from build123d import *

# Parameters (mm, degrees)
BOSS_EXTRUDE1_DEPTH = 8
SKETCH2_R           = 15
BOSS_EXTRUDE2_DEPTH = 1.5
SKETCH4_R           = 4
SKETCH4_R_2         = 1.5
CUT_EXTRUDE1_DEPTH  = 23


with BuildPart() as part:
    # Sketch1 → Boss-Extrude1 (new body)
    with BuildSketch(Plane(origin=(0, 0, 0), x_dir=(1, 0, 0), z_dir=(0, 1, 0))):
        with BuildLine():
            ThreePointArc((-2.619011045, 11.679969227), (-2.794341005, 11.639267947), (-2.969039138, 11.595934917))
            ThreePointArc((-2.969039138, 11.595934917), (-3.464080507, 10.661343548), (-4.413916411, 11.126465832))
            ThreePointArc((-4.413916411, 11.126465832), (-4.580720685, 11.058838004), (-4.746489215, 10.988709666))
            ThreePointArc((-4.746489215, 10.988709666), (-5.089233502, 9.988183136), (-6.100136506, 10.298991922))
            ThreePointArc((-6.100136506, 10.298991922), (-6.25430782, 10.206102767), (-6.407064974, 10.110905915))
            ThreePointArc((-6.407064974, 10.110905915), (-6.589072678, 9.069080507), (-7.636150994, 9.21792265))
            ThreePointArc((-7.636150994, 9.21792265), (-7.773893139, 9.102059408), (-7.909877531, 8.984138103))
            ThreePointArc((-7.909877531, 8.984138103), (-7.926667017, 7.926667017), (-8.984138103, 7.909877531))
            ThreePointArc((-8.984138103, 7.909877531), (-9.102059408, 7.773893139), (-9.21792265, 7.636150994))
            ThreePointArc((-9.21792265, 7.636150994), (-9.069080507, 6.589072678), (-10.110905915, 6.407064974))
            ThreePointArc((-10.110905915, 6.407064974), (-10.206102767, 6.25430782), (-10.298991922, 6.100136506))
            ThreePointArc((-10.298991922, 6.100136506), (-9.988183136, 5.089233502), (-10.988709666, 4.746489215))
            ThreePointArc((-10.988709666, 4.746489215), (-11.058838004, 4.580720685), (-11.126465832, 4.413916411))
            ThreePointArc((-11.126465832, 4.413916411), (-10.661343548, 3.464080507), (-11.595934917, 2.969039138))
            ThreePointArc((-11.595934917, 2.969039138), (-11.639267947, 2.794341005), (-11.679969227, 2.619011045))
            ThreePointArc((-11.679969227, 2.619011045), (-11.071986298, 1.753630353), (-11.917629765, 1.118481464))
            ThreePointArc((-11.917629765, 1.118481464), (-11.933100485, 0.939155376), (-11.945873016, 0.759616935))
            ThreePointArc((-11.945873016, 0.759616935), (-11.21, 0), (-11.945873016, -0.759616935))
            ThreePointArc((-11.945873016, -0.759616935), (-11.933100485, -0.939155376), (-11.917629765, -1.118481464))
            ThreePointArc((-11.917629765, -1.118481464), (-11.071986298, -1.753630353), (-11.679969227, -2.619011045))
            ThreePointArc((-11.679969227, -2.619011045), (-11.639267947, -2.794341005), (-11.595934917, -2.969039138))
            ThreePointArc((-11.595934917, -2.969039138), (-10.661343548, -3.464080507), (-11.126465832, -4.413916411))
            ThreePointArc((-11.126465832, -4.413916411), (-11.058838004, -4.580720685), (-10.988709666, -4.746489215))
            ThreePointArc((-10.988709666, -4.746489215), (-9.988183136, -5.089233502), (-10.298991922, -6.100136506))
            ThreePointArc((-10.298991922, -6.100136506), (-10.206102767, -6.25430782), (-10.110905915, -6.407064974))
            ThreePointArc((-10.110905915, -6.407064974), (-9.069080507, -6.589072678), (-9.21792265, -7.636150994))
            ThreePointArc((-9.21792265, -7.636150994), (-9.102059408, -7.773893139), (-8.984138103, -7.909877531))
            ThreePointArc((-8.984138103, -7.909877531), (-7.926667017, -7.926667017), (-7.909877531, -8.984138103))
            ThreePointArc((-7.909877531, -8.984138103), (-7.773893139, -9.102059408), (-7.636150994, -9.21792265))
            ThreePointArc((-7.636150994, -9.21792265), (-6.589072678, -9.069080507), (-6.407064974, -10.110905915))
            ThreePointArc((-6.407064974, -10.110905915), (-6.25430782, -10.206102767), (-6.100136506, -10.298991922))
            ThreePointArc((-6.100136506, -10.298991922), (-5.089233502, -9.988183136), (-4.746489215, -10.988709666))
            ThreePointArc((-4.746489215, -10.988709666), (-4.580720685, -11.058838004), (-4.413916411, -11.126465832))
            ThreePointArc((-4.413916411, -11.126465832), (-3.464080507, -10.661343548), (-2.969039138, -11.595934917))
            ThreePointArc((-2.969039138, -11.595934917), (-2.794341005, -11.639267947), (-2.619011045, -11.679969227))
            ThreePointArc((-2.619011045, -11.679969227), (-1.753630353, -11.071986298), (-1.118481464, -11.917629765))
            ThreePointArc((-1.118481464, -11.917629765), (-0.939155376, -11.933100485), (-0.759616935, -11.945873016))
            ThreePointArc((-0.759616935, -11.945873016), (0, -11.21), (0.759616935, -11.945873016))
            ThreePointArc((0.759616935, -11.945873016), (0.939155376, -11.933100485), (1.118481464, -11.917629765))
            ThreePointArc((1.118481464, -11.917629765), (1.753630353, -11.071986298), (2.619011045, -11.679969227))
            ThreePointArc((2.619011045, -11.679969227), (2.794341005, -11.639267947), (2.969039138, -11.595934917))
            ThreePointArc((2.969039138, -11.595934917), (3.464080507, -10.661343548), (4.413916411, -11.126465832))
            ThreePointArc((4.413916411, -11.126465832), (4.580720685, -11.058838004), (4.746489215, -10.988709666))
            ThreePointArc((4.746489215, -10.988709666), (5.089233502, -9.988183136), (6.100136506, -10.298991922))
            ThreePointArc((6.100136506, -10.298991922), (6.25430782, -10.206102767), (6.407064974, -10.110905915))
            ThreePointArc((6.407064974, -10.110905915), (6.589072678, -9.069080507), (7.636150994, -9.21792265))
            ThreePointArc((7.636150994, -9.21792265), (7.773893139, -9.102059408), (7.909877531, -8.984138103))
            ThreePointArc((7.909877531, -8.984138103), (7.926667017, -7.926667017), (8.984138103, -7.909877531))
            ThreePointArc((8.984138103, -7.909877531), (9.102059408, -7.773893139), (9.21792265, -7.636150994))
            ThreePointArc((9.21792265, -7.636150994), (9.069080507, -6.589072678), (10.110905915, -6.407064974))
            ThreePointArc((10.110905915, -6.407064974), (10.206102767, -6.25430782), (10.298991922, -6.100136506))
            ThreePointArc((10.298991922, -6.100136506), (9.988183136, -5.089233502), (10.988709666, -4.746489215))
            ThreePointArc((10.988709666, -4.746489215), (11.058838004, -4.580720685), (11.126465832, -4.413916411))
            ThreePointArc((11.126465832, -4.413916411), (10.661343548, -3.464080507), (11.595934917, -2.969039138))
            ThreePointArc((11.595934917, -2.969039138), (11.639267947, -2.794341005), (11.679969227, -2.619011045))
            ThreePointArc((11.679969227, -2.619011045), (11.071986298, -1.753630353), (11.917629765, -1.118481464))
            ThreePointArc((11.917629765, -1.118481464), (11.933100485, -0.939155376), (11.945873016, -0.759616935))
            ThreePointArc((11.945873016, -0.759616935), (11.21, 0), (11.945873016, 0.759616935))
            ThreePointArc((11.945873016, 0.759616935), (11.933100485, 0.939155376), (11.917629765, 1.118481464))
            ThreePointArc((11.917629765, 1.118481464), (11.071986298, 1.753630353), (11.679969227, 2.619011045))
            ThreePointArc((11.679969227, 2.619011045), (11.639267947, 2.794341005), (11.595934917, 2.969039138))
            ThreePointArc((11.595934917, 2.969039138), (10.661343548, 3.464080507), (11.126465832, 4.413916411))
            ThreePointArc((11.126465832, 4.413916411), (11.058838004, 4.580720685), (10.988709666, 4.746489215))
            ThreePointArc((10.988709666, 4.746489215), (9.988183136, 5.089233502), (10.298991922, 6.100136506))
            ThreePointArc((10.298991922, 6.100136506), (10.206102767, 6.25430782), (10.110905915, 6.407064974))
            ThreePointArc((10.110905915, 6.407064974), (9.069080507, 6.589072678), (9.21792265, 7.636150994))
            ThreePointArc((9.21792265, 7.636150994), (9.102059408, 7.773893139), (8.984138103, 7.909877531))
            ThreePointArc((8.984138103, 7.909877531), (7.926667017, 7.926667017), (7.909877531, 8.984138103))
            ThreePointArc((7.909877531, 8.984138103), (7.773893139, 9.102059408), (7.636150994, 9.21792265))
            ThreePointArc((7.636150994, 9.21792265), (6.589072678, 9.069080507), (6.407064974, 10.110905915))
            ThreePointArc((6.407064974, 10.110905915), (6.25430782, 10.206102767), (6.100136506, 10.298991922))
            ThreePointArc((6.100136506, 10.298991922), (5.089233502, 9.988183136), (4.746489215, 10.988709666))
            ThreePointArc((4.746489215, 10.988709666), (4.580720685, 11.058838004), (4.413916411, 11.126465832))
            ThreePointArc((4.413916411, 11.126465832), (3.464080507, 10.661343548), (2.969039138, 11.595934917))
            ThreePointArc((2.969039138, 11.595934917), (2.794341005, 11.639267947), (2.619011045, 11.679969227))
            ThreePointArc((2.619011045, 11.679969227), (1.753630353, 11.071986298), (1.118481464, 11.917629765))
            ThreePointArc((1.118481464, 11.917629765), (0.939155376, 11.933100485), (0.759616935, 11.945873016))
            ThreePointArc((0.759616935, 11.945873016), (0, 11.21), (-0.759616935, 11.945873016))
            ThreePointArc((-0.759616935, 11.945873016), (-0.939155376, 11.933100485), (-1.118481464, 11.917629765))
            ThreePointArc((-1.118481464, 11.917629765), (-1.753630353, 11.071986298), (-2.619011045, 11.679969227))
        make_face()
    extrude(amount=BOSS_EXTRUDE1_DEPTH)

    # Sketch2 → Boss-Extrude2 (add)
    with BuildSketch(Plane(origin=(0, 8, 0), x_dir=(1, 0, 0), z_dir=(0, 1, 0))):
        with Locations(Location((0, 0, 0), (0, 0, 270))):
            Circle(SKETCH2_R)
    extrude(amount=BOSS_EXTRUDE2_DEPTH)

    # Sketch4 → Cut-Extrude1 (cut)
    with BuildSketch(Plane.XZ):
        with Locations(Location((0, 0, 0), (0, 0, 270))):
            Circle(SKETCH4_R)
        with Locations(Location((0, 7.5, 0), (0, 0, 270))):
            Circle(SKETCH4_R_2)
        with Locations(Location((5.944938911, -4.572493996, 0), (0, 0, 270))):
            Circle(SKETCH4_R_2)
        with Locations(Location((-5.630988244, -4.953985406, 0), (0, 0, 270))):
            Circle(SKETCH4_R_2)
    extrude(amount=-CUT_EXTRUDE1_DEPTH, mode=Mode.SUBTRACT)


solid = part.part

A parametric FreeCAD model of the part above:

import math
import FreeCAD as App
import Part
import Sketcher

V = App.Vector
Q = App.Units.Quantity

doc = App.newDocument("Part")
body = doc.addObject("PartDesign::Body", "Body")

sketch1 = doc.addObject("Sketcher::SketchObject", "Sketch")
body.addObject(sketch1)
sketch1.AttachmentSupport = (doc.XZ_Plane, [""])
sketch1.MapMode = "FlatFace"
sketch1.addGeometry([
    Part.ArcOfCircle(Part.Circle(V(0, 0, 0), V(0, 0, 1), 11.97), math.radians(-104.36), math.radians(-102.64)),
    Part.ArcOfCircle(Part.Circle(V(-3.7, -11.38, 0), V(0, 0, 1), 0.76), math.radians(-16), math.radians(160)),
    Part.ArcOfCircle(Part.Circle(V(0, 0, 0), V(0, 0, 1), 11.97), math.radians(-113.36), math.radians(-111.64)),
    Part.ArcOfCircle(Part.Circle(V(-5.43, -10.67, 0), V(0, 0, 1), 0.76), math.radians(-25), math.radians(151)),
    Part.ArcOfCircle(Part.Circle(V(0, 0, 0), V(0, 0, 1), 11.97), math.radians(-122.36), math.radians(-120.64)),
    Part.ArcOfCircle(Part.Circle(V(-7.04, -9.68, 0), V(0, 0, 1), 0.76), math.radians(-34), math.radians(142)),
    Part.ArcOfCircle(Part.Circle(V(0, 0, 0), V(0, 0, 1), 11.97), math.radians(-131.36), math.radians(-129.64)),
    Part.ArcOfCircle(Part.Circle(V(-8.46, -8.46, 0), V(0, 0, 1), 0.76), math.radians(-43), math.radians(133)),
    Part.ArcOfCircle(Part.Circle(V(0, 0, 0), V(0, 0, 1), 11.97), math.radians(-140.36), math.radians(-138.64)),
    Part.ArcOfCircle(Part.Circle(V(-9.68, -7.04, 0), V(0, 0, 1), 0.76), math.radians(-52), math.radians(124)),
    Part.ArcOfCircle(Part.Circle(V(0, 0, 0), V(0, 0, 1), 11.97), math.radians(-149.36), math.radians(-147.64)),
    Part.ArcOfCircle(Part.Circle(V(-10.67, -5.43, 0), V(0, 0, 1), 0.76), math.radians(-61), math.radians(115)),
    Part.ArcOfCircle(Part.Circle(V(0, 0, 0), V(0, 0, 1), 11.97), math.radians(-158.36), math.radians(-156.64)),
    Part.ArcOfCircle(Part.Circle(V(-11.38, -3.7, 0), V(0, 0, 1), 0.76), math.radians(-70), math.radians(106)),
    Part.ArcOfCircle(Part.Circle(V(0, 0, 0), V(0, 0, 1), 11.97), math.radians(-167.36), math.radians(-165.64)),
    Part.ArcOfCircle(Part.Circle(V(-11.82, -1.87, 0), V(0, 0, 1), 0.76), math.radians(-79), math.radians(97)),
    Part.ArcOfCircle(Part.Circle(V(0, 0, 0), V(0, 0, 1), 11.97), math.radians(-176.36), math.radians(-174.64)),
    Part.ArcOfCircle(Part.Circle(V(-11.97, 0, 0), V(0, 0, 1), 0.76), math.radians(-88), math.radians(88)),
    Part.ArcOfCircle(Part.Circle(V(0, 0, 0), V(0, 0, 1), 11.97), math.radians(174.64), math.radians(176.36)),
    Part.ArcOfCircle(Part.Circle(V(-11.82, 1.87, 0), V(0, 0, 1), 0.76), math.radians(-97), math.radians(79)),
    Part.ArcOfCircle(Part.Circle(V(0, 0, 0), V(0, 0, 1), 11.97), math.radians(165.64), math.radians(167.36)),
    Part.ArcOfCircle(Part.Circle(V(-11.38, 3.7, 0), V(0, 0, 1), 0.76), math.radians(-106), math.radians(70)),
    Part.ArcOfCircle(Part.Circle(V(0, 0, 0), V(0, 0, 1), 11.97), math.radians(156.64), math.radians(158.36)),
    Part.ArcOfCircle(Part.Circle(V(-10.67, 5.43, 0), V(0, 0, 1), 0.76), math.radians(-115), math.radians(61)),
    Part.ArcOfCircle(Part.Circle(V(0, 0, 0), V(0, 0, 1), 11.97), math.radians(147.64), math.radians(149.36)),
    Part.ArcOfCircle(Part.Circle(V(-9.68, 7.04, 0), V(0, 0, 1), 0.76), math.radians(-124), math.radians(52)),
    Part.ArcOfCircle(Part.Circle(V(0, 0, 0), V(0, 0, 1), 11.97), math.radians(138.64), math.radians(140.36)),
    Part.ArcOfCircle(Part.Circle(V(-8.46, 8.46, 0), V(0, 0, 1), 0.76), math.radians(-133), math.radians(43)),
    Part.ArcOfCircle(Part.Circle(V(0, 0, 0), V(0, 0, 1), 11.97), math.radians(129.64), math.radians(131.36)),
    Part.ArcOfCircle(Part.Circle(V(-7.04, 9.68, 0), V(0, 0, 1), 0.76), math.radians(-142), math.radians(34)),
    Part.ArcOfCircle(Part.Circle(V(0, 0, 0), V(0, 0, 1), 11.97), math.radians(120.64), math.radians(122.36)),
    Part.ArcOfCircle(Part.Circle(V(-5.43, 10.67, 0), V(0, 0, 1), 0.76), math.radians(-151), math.radians(25)),
    Part.ArcOfCircle(Part.Circle(V(0, 0, 0), V(0, 0, 1), 11.97), math.radians(111.64), math.radians(113.36)),
    Part.ArcOfCircle(Part.Circle(V(-3.7, 11.38, 0), V(0, 0, 1), 0.76), math.radians(-160), math.radians(16)),
    Part.ArcOfCircle(Part.Circle(V(0, 0, 0), V(0, 0, 1), 11.97), math.radians(102.64), math.radians(104.36)),
    Part.ArcOfCircle(Part.Circle(V(-1.87, 11.82, 0), V(0, 0, 1), 0.76), math.radians(-169), math.radians(7)),
    Part.ArcOfCircle(Part.Circle(V(0, 0, 0), V(0, 0, 1), 11.97), math.radians(93.64), math.radians(95.36)),
    Part.ArcOfCircle(Part.Circle(V(0, 11.97, 0), V(0, 0, 1), 0.76), math.radians(-178), math.radians(-2)),
    Part.ArcOfCircle(Part.Circle(V(0, 0, 0), V(0, 0, 1), 11.97), math.radians(84.64), math.radians(86.36)),
    Part.ArcOfCircle(Part.Circle(V(1.87, 11.82, 0), V(0, 0, 1), 0.76), math.radians(173), math.radians(349)),
    Part.ArcOfCircle(Part.Circle(V(0, 0, 0), V(0, 0, 1), 11.97), math.radians(75.64), math.radians(77.36)),
    Part.ArcOfCircle(Part.Circle(V(3.7, 11.38, 0), V(0, 0, 1), 0.76), math.radians(164), math.radians(340)),
    Part.ArcOfCircle(Part.Circle(V(0, 0, 0), V(0, 0, 1), 11.97), math.radians(66.64), math.radians(68.36)),
    Part.ArcOfCircle(Part.Circle(V(5.43, 10.67, 0), V(0, 0, 1), 0.76), math.radians(155), math.radians(331)),
    Part.ArcOfCircle(Part.Circle(V(0, 0, 0), V(0, 0, 1), 11.97), math.radians(57.64), math.radians(59.36)),
    Part.ArcOfCircle(Part.Circle(V(7.04, 9.68, 0), V(0, 0, 1), 0.76), math.radians(146), math.radians(322)),
    Part.ArcOfCircle(Part.Circle(V(0, 0, 0), V(0, 0, 1), 11.97), math.radians(48.64), math.radians(50.36)),
    Part.ArcOfCircle(Part.Circle(V(8.46, 8.46, 0), V(0, 0, 1), 0.76), math.radians(137), math.radians(313)),
    Part.ArcOfCircle(Part.Circle(V(0, 0, 0), V(0, 0, 1), 11.97), math.radians(39.64), math.radians(41.36)),
    Part.ArcOfCircle(Part.Circle(V(9.68, 7.04, 0), V(0, 0, 1), 0.76), math.radians(128), math.radians(304)),
    Part.ArcOfCircle(Part.Circle(V(0, 0, 0), V(0, 0, 1), 11.97), math.radians(30.64), math.radians(32.36)),
    Part.ArcOfCircle(Part.Circle(V(10.67, 5.43, 0), V(0, 0, 1), 0.76), math.radians(119), math.radians(295)),
    Part.ArcOfCircle(Part.Circle(V(0, 0, 0), V(0, 0, 1), 11.97), math.radians(21.64), math.radians(23.36)),
    Part.ArcOfCircle(Part.Circle(V(11.38, 3.7, 0), V(0, 0, 1), 0.76), math.radians(110), math.radians(286)),
    Part.ArcOfCircle(Part.Circle(V(0, 0, 0), V(0, 0, 1), 11.97), math.radians(12.64), math.radians(14.36)),
    Part.ArcOfCircle(Part.Circle(V(11.82, 1.87, 0), V(0, 0, 1), 0.76), math.radians(101), math.radians(277)),
    Part.ArcOfCircle(Part.Circle(V(0, 0, 0), V(0, 0, 1), 11.97), math.radians(3.64), math.radians(5.36)),
    Part.ArcOfCircle(Part.Circle(V(11.97, 0, 0), V(0, 0, 1), 0.76), math.radians(92), math.radians(268)),
    Part.ArcOfCircle(Part.Circle(V(0, 0, 0), V(0, 0, 1), 11.97), math.radians(-5.36), math.radians(-3.64)),
    Part.ArcOfCircle(Part.Circle(V(11.82, -1.87, 0), V(0, 0, 1), 0.76), math.radians(83), math.radians(259)),
    Part.ArcOfCircle(Part.Circle(V(0, 0, 0), V(0, 0, 1), 11.97), math.radians(-14.36), math.radians(-12.64)),
    Part.ArcOfCircle(Part.Circle(V(11.38, -3.7, 0), V(0, 0, 1), 0.76), math.radians(74), math.radians(250)),
    Part.ArcOfCircle(Part.Circle(V(0, 0, 0), V(0, 0, 1), 11.97), math.radians(-23.36), math.radians(-21.64)),
    Part.ArcOfCircle(Part.Circle(V(10.67, -5.43, 0), V(0, 0, 1), 0.76), math.radians(65), math.radians(241)),
    Part.ArcOfCircle(Part.Circle(V(0, 0, 0), V(0, 0, 1), 11.97), math.radians(-32.36), math.radians(-30.64)),
    Part.ArcOfCircle(Part.Circle(V(9.68, -7.04, 0), V(0, 0, 1), 0.76), math.radians(56), math.radians(232)),
    Part.ArcOfCircle(Part.Circle(V(0, 0, 0), V(0, 0, 1), 11.97), math.radians(-41.36), math.radians(-39.64)),
    Part.ArcOfCircle(Part.Circle(V(8.46, -8.46, 0), V(0, 0, 1), 0.76), math.radians(47), math.radians(223)),
    Part.ArcOfCircle(Part.Circle(V(0, 0, 0), V(0, 0, 1), 11.97), math.radians(-50.36), math.radians(-48.64)),
    Part.ArcOfCircle(Part.Circle(V(7.04, -9.68, 0), V(0, 0, 1), 0.76), math.radians(38), math.radians(214)),
    Part.ArcOfCircle(Part.Circle(V(0, 0, 0), V(0, 0, 1), 11.97), math.radians(-59.36), math.radians(-57.64)),
    Part.ArcOfCircle(Part.Circle(V(5.43, -10.67, 0), V(0, 0, 1), 0.76), math.radians(29), math.radians(205)),
    Part.ArcOfCircle(Part.Circle(V(0, 0, 0), V(0, 0, 1), 11.97), math.radians(-68.36), math.radians(-66.64)),
    Part.ArcOfCircle(Part.Circle(V(3.7, -11.38, 0), V(0, 0, 1), 0.76), math.radians(20), math.radians(196)),
    Part.ArcOfCircle(Part.Circle(V(0, 0, 0), V(0, 0, 1), 11.97), math.radians(-77.36), math.radians(-75.64)),
    Part.ArcOfCircle(Part.Circle(V(1.87, -11.82, 0), V(0, 0, 1), 0.76), math.radians(11), math.radians(187)),
    Part.ArcOfCircle(Part.Circle(V(0, 0, 0), V(0, 0, 1), 11.97), math.radians(-86.36), math.radians(-84.64)),
    Part.ArcOfCircle(Part.Circle(V(0, -11.97, 0), V(0, 0, 1), 0.76), math.radians(2), math.radians(178)),
    Part.ArcOfCircle(Part.Circle(V(0, 0, 0), V(0, 0, 1), 11.97), math.radians(-95.36), math.radians(-93.64)),
    Part.ArcOfCircle(Part.Circle(V(-1.87, -11.82, 0), V(0, 0, 1), 0.76), math.radians(-7), math.radians(169)),
], False)
sketch1.addConstraint([
    Sketcher.Constraint("Coincident", 0, 1, 1, 1),
    Sketcher.Constraint("Coincident", 1, 2, 2, 2),
    Sketcher.Constraint("Coincident", 2, 1, 3, 1),
    Sketcher.Constraint("Coincident", 3, 2, 4, 2),
    Sketcher.Constraint("Coincident", 4, 1, 5, 1),
    Sketcher.Constraint("Coincident", 5, 2, 6, 2),
    Sketcher.Constraint("Coincident", 6, 1, 7, 1),
    Sketcher.Constraint("Coincident", 7, 2, 8, 2),
    Sketcher.Constraint("Coincident", 8, 1, 9, 1),
    Sketcher.Constraint("Coincident", 9, 2, 10, 2),
    Sketcher.Constraint("Coincident", 10, 1, 11, 1),
    Sketcher.Constraint("Coincident", 11, 2, 12, 2),
    Sketcher.Constraint("Coincident", 12, 1, 13, 1),
    Sketcher.Constraint("Coincident", 13, 2, 14, 2),
    Sketcher.Constraint("Coincident", 14, 1, 15, 1),
    Sketcher.Constraint("Coincident", 15, 2, 16, 2),
    Sketcher.Constraint("Coincident", 16, 1, 17, 1),
    Sketcher.Constraint("Coincident", 17, 2, 18, 2),
    Sketcher.Constraint("Coincident", 18, 1, 19, 1),
    Sketcher.Constraint("Coincident", 19, 2, 20, 2),
    Sketcher.Constraint("Coincident", 20, 1, 21, 1),
    Sketcher.Constraint("Coincident", 21, 2, 22, 2),
    Sketcher.Constraint("Coincident", 22, 1, 23, 1),
    Sketcher.Constraint("Coincident", 23, 2, 24, 2),
    Sketcher.Constraint("Coincident", 24, 1, 25, 1),
    Sketcher.Constraint("Coincident", 25, 2, 26, 2),
    Sketcher.Constraint("Coincident", 26, 1, 27, 1),
    Sketcher.Constraint("Coincident", 27, 2, 28, 2),
    Sketcher.Constraint("Coincident", 28, 1, 29, 1),
    Sketcher.Constraint("Coincident", 29, 2, 30, 2),
    Sketcher.Constraint("Coincident", 30, 1, 31, 1),
    Sketcher.Constraint("Coincident", 31, 2, 32, 2),
    Sketcher.Constraint("Coincident", 32, 1, 33, 1),
    Sketcher.Constraint("Coincident", 33, 2, 34, 2),
    Sketcher.Constraint("Coincident", 34, 1, 35, 1),
    Sketcher.Constraint("Coincident", 35, 2, 36, 2),
    Sketcher.Constraint("Coincident", 36, 1, 37, 1),
    Sketcher.Constraint("Coincident", 37, 2, 38, 2),
    Sketcher.Constraint("Coincident", 38, 1, 39, 1),
    Sketcher.Constraint("Coincident", 39, 2, 40, 2),
    Sketcher.Constraint("Coincident", 40, 1, 41, 1),
    Sketcher.Constraint("Coincident", 41, 2, 42, 2),
    Sketcher.Constraint("Coincident", 42, 1, 43, 1),
    Sketcher.Constraint("Coincident", 43, 2, 44, 2),
    Sketcher.Constraint("Coincident", 44, 1, 45, 1),
    Sketcher.Constraint("Coincident", 45, 2, 46, 2),
    Sketcher.Constraint("Coincident", 46, 1, 47, 1),
    Sketcher.Constraint("Coincident", 47, 2, 48, 2),
    Sketcher.Constraint("Coincident", 48, 1, 49, 1),
    Sketcher.Constraint("Coincident", 49, 2, 50, 2),
    Sketcher.Constraint("Coincident", 50, 1, 51, 1),
    Sketcher.Constraint("Coincident", 51, 2, 52, 2),
    Sketcher.Constraint("Coincident", 52, 1, 53, 1),
    Sketcher.Constraint("Coincident", 53, 2, 54, 2),
    Sketcher.Constraint("Coincident", 54, 1, 55, 1),
    Sketcher.Constraint("Coincident", 55, 2, 56, 2),
    Sketcher.Constraint("Coincident", 56, 1, 57, 1),
    Sketcher.Constraint("Coincident", 57, 2, 58, 2),
    Sketcher.Constraint("Coincident", 58, 1, 59, 1),
    Sketcher.Constraint("Coincident", 59, 2, 60, 2),
    Sketcher.Constraint("Coincident", 60, 1, 61, 1),
    Sketcher.Constraint("Coincident", 61, 2, 62, 2),
    Sketcher.Constraint("Coincident", 62, 1, 63, 1),
    Sketcher.Constraint("Coincident", 63, 2, 64, 2),
    Sketcher.Constraint("Coincident", 64, 1, 65, 1),
    Sketcher.Constraint("Coincident", 65, 2, 66, 2),
    Sketcher.Constraint("Coincident", 66, 1, 67, 1),
    Sketcher.Constraint("Coincident", 67, 2, 68, 2),
    Sketcher.Constraint("Coincident", 68, 1, 69, 1),
    Sketcher.Constraint("Coincident", 69, 2, 70, 2),
    Sketcher.Constraint("Coincident", 70, 1, 71, 1),
    Sketcher.Constraint("Coincident", 71, 2, 72, 2),
    Sketcher.Constraint("Coincident", 72, 1, 73, 1),
    Sketcher.Constraint("Coincident", 73, 2, 74, 2),
    Sketcher.Constraint("Coincident", 74, 1, 75, 1),
    Sketcher.Constraint("Coincident", 75, 2, 76, 2),
    Sketcher.Constraint("Coincident", 76, 1, 77, 1),
    Sketcher.Constraint("Coincident", 77, 2, 78, 2),
    Sketcher.Constraint("Coincident", 78, 1, 79, 1),
    Sketcher.Constraint("Coincident", 79, 2, 0, 2),
    Sketcher.Constraint("Coincident", 0, 3, -1, 1),
    Sketcher.Constraint("Coincident", 2, 3, -1, 1),
    Sketcher.Constraint("Coincident", 4, 3, -1, 1),
    Sketcher.Constraint("Coincident", 6, 3, -1, 1),
    Sketcher.Constraint("Coincident", 8, 3, -1, 1),
    Sketcher.Constraint("Coincident", 10, 3, -1, 1),
    Sketcher.Constraint("Coincident", 12, 3, -1, 1),
    Sketcher.Constraint("Coincident", 14, 3, -1, 1),
    Sketcher.Constraint("Coincident", 16, 3, -1, 1),
    Sketcher.Constraint("Coincident", 18, 3, -1, 1),
    Sketcher.Constraint("Coincident", 20, 3, -1, 1),
    Sketcher.Constraint("Coincident", 22, 3, -1, 1),
    Sketcher.Constraint("Coincident", 24, 3, -1, 1),
    Sketcher.Constraint("Coincident", 26, 3, -1, 1),
    Sketcher.Constraint("Coincident", 28, 3, -1, 1),
    Sketcher.Constraint("Coincident", 30, 3, -1, 1),
    Sketcher.Constraint("Coincident", 32, 3, -1, 1),
    Sketcher.Constraint("Coincident", 34, 3, -1, 1),
    Sketcher.Constraint("Coincident", 36, 3, -1, 1),
    Sketcher.Constraint("Coincident", 38, 3, -1, 1),
    Sketcher.Constraint("Coincident", 40, 3, -1, 1),
    Sketcher.Constraint("Coincident", 42, 3, -1, 1),
    Sketcher.Constraint("Coincident", 44, 3, -1, 1),
    Sketcher.Constraint("Coincident", 46, 3, -1, 1),
    Sketcher.Constraint("Coincident", 48, 3, -1, 1),
    Sketcher.Constraint("Coincident", 50, 3, -1, 1),
    Sketcher.Constraint("Coincident", 52, 3, -1, 1),
    Sketcher.Constraint("Coincident", 54, 3, -1, 1),
    Sketcher.Constraint("Coincident", 56, 3, -1, 1),
    Sketcher.Constraint("Coincident", 58, 3, -1, 1),
    Sketcher.Constraint("Coincident", 60, 3, -1, 1),
    Sketcher.Constraint("Coincident", 62, 3, -1, 1),
    Sketcher.Constraint("Coincident", 64, 3, -1, 1),
    Sketcher.Constraint("Coincident", 66, 3, -1, 1),
    Sketcher.Constraint("Coincident", 68, 3, -1, 1),
    Sketcher.Constraint("Coincident", 70, 3, -1, 1),
    Sketcher.Constraint("Coincident", 72, 3, -1, 1),
    Sketcher.Constraint("Coincident", 74, 3, -1, 1),
    Sketcher.Constraint("Coincident", 76, 3, -1, 1),
    Sketcher.Constraint("Coincident", 78, 3, -1, 1),
    Sketcher.Constraint("Equal", 1, 3),
    Sketcher.Constraint("Equal", 2, 4),
    Sketcher.Constraint("Equal", 3, 5),
    Sketcher.Constraint("Equal", 5, 7),
    Sketcher.Constraint("Equal", 6, 8),
    Sketcher.Constraint("Equal", 7, 9),
    Sketcher.Constraint("Equal", 4, 10),
    Sketcher.Constraint("Equal", 9, 11),
    Sketcher.Constraint("Equal", 10, 12),
    Sketcher.Constraint("Equal", 11, 13),
    Sketcher.Constraint("Equal", 10, 14),
    Sketcher.Constraint("Equal", 13, 15),
    Sketcher.Constraint("Equal", 12, 16),
    Sketcher.Constraint("Equal", 15, 17),
    Sketcher.Constraint("Equal", 16, 18),
    Sketcher.Constraint("Equal", 17, 19),
    Sketcher.Constraint("Equal", 14, 20),
    Sketcher.Constraint("Equal", 19, 21),
    Sketcher.Constraint("Equal", 18, 22),
    Sketcher.Constraint("Equal", 21, 23),
    Sketcher.Constraint("Equal", 22, 24),
    Sketcher.Constraint("Equal", 23, 25),
    Sketcher.Constraint("Equal", 18, 26),
    Sketcher.Constraint("Equal", 25, 27),
    Sketcher.Constraint("Equal", 26, 28),
    Sketcher.Constraint("Equal", 27, 29),
    Sketcher.Constraint("Equal", 24, 30),
    Sketcher.Constraint("Equal", 29, 31),
    Sketcher.Constraint("Equal", 30, 32),
    Sketcher.Constraint("Equal", 31, 33),
    Sketcher.Constraint("Equal", 30, 34),
    Sketcher.Constraint("Equal", 33, 35),
    Sketcher.Constraint("Equal", 32, 36),
    Sketcher.Constraint("Equal", 35, 37),
    Sketcher.Constraint("Equal", 36, 38),
    Sketcher.Constraint("Equal", 37, 39),
    Sketcher.Constraint("Equal", 34, 40),
    Sketcher.Constraint("Equal", 39, 41),
    Sketcher.Constraint("Equal", 38, 42),
    Sketcher.Constraint("Equal", 41, 43),
    Sketcher.Constraint("Equal", 42, 44),
    Sketcher.Constraint("Equal", 43, 45),
    Sketcher.Constraint("Equal", 38, 46),
    Sketcher.Constraint("Equal", 45, 47),
    Sketcher.Constraint("Equal", 46, 48),
    Sketcher.Constraint("Equal", 47, 49),
    Sketcher.Constraint("Equal", 44, 50),
    Sketcher.Constraint("Equal", 49, 51),
    Sketcher.Constraint("Equal", 50, 52),
    Sketcher.Constraint("Equal", 51, 53),
    Sketcher.Constraint("Equal", 50, 54),
    Sketcher.Constraint("Equal", 53, 55),
    Sketcher.Constraint("Equal", 52, 56),
    Sketcher.Constraint("Equal", 55, 57),
    Sketcher.Constraint("Equal", 56, 58),
    Sketcher.Constraint("Equal", 57, 59),
    Sketcher.Constraint("Equal", 54, 60),
    Sketcher.Constraint("Equal", 59, 61),
    Sketcher.Constraint("Equal", 58, 62),
    Sketcher.Constraint("Equal", 61, 63),
    Sketcher.Constraint("Equal", 62, 64),
    Sketcher.Constraint("Equal", 63, 65),
    Sketcher.Constraint("Equal", 58, 66),
    Sketcher.Constraint("Equal", 65, 67),
    Sketcher.Constraint("Equal", 66, 68),
    Sketcher.Constraint("Equal", 67, 69),
    Sketcher.Constraint("Equal", 64, 70),
    Sketcher.Constraint("Equal", 69, 71),
    Sketcher.Constraint("Equal", 70, 72),
    Sketcher.Constraint("Equal", 71, 73),
    Sketcher.Constraint("Equal", 70, 74),
    Sketcher.Constraint("Equal", 73, 75),
    Sketcher.Constraint("Equal", 72, 76),
    Sketcher.Constraint("Equal", 75, 77),
    Sketcher.Constraint("Equal", 76, 78),
    Sketcher.Constraint("Equal", 77, 79),
    Sketcher.Constraint("Symmetric", 1, 3, 41, 3, -1, 1),
    Sketcher.Constraint("Symmetric", 3, 3, 43, 3, -1, 1),
    Sketcher.Constraint("Symmetric", 5, 3, 45, 3, -1, 1),
    Sketcher.Constraint("Symmetric", 7, 3, 47, 3, -1, 1),
    Sketcher.Constraint("Symmetric", 9, 3, 49, 3, -1, 1),
    Sketcher.Constraint("Symmetric", 11, 3, 51, 3, -1, 1),
    Sketcher.Constraint("Symmetric", 13, 3, 53, 3, -1, 1),
    Sketcher.Constraint("Symmetric", 15, 3, 55, 3, -1, 1),
    Sketcher.Constraint("Symmetric", 17, 3, 57, 3, -1, 1),
    Sketcher.Constraint("Symmetric", 19, 3, 59, 3, -1, 1),
    Sketcher.Constraint("Symmetric", 21, 3, 61, 3, -1, 1),
    Sketcher.Constraint("Symmetric", 23, 3, 63, 3, -1, 1),
    Sketcher.Constraint("Symmetric", 25, 3, 65, 3, -1, 1),
    Sketcher.Constraint("Symmetric", 27, 3, 67, 3, -1, 1),
    Sketcher.Constraint("Symmetric", 29, 3, 69, 3, -1, 1),
    Sketcher.Constraint("Symmetric", 31, 3, 71, 3, -1, 1),
    Sketcher.Constraint("Symmetric", 33, 3, 73, 3, -1, 1),
    Sketcher.Constraint("Symmetric", 35, 3, 75, 3, -1, 1),
    Sketcher.Constraint("Symmetric", 37, 3, 77, 3, -1, 1),
    Sketcher.Constraint("Symmetric", 39, 3, 79, 3, -1, 1),
    Sketcher.Constraint("Symmetric", 35, 3, 39, 3, -2),
    Sketcher.Constraint("Symmetric", 33, 3, 41, 3, -2),
    Sketcher.Constraint("Symmetric", 31, 3, 43, 3, -2),
    Sketcher.Constraint("Symmetric", 29, 3, 45, 3, -2),
    Sketcher.Constraint("Symmetric", 27, 3, 47, 3, -2),
    Sketcher.Constraint("Symmetric", 25, 3, 49, 3, -2),
    Sketcher.Constraint("Symmetric", 23, 3, 51, 3, -2),
    Sketcher.Constraint("Symmetric", 21, 3, 53, 3, -2),
    Sketcher.Constraint("Symmetric", 19, 3, 55, 3, -2),
    Sketcher.Constraint("PointOnObject", 17, 3, -1),
    Sketcher.Constraint("PointOnObject", 37, 3, -2),
    Sketcher.Constraint("Horizontal", 8, 1, 65, 2),
    Sketcher.Constraint("Horizontal", 0, 1, 73, 2),
    Sketcher.Constraint("Radius", 1, Q("0.76 mm")),
    Sketcher.Constraint("Radius", 2, Q("11.97 mm")),
    Sketcher.Constraint("DistanceX", 17, 3, -1, 1, Q("11.97 mm")),
    Sketcher.Constraint("DistanceY", -1, 1, 37, 3, Q("11.97 mm")),
    Sketcher.Constraint("DistanceY", 3, 3, -1, 1, Q("10.665348 mm")),
    Sketcher.Constraint("DistanceX", 5, 3, -1, 1, Q("7.035789 mm")),
    Sketcher.Constraint("DistanceX", 7, 3, -1, 1, Q("8.464068 mm")),
    Sketcher.Constraint("DistanceY", 7, 3, -1, 1, Q("8.464068 mm")),
    Sketcher.Constraint("DistanceY", 9, 3, -1, 1, Q("7.035789 mm")),
    Sketcher.Constraint("DistanceX", 11, 3, -1, 1, Q("10.665348 mm")),
    Sketcher.Constraint("DistanceX", 15, 3, -1, 1, Q("11.822629 mm")),
    Sketcher.Constraint("DistanceY", 15, 3, -1, 1, Q("1.872521 mm")),
    Sketcher.Constraint("DistanceX", 35, 3, -1, 1, Q("1.872521 mm")),
    Sketcher.Constraint("DistanceY", -1, 1, 35, 3, Q("11.822629 mm")),
    Sketcher.Constraint("DistanceX", 0, 1, -1, 1, Q("2.969039 mm")),
    Sketcher.Constraint("DistanceX", 2, 1, -1, 1, Q("4.746489 mm")),
    Sketcher.Constraint("DistanceX", 5, 2, -1, 1, Q("7.636151 mm")),
    Sketcher.Constraint("DistanceY", 8, 1, -1, 1, Q("7.636151 mm")),
    Sketcher.Constraint("DistanceX", 10, 1, -1, 1, Q("10.298992 mm")),
    Sketcher.Constraint("DistanceY", 13, 2, -1, 1, Q("2.969039 mm")),
    Sketcher.Constraint("DistanceX", 1, 3, -1, 1, Q("3.698933 mm")),
    Sketcher.Constraint("DistanceX", 13, 3, -1, 1, Q("11.384147 mm")),
])
pad1 = doc.addObject("PartDesign::Pad", "Pad")
body.addObject(pad1)
pad1.Profile = sketch1
pad1.Length = 8
pad1.Reversed = True

sketch2 = doc.addObject("Sketcher::SketchObject", "Sketch001")
body.addObject(sketch2)
sketch2.AttachmentSupport = (doc.XZ_Plane, [""])
sketch2.MapMode = "FlatFace"
sketch2.AttachmentOffset = App.Placement(V(0, 0, -8), App.Rotation())
sketch2.addGeometry(Part.Circle(V(0, 0, 0), V(0, 0, 1), 15), False)
sketch2.addConstraint([
    Sketcher.Constraint("Coincident", 0, 3, -1, 1),
    Sketcher.Constraint("Diameter", 0, Q("30 mm")),
])
pad2 = doc.addObject("PartDesign::Pad", "Pad001")
body.addObject(pad2)
pad2.Profile = sketch2
pad2.Length = 1.5
pad2.Reversed = True

sketch3 = doc.addObject("Sketcher::SketchObject", "Sketch002")
body.addObject(sketch3)
sketch3.AttachmentSupport = (doc.XZ_Plane, [""])
sketch3.MapMode = "FlatFace"
sketch3.addGeometry([
    Part.Circle(V(0, 0, 0), V(0, 0, 1), 4),
    Part.Circle(V(0, 7.5, 0), V(0, 0, 1), 1.5),
    Part.Circle(V(5.9, -4.6, 0), V(0, 0, 1), 1.5),
    Part.Circle(V(-5.6, -5, 0), V(0, 0, 1), 1.5),
], False)
sketch3.addConstraint([
    Sketcher.Constraint("Coincident", 0, 3, -1, 1),
    Sketcher.Constraint("Equal", 1, 2),
    Sketcher.Constraint("Equal", 2, 3),
    Sketcher.Constraint("PointOnObject", 1, 3, -2),
    Sketcher.Constraint("Diameter", 0, Q("8 mm")),
    Sketcher.Constraint("Diameter", 1, Q("3 mm")),
    Sketcher.Constraint("DistanceY", -1, 1, 1, 3, Q("7.5 mm")),
    Sketcher.Constraint("DistanceX", -1, 1, 2, 3, Q("5.944939 mm")),
    Sketcher.Constraint("DistanceX", 3, 3, -1, 1, Q("5.630988 mm")),
    Sketcher.Constraint("DistanceY", 3, 3, 2, 3, Q("0.381491 mm")),
    Sketcher.Constraint("DistanceY", 2, 3, -1, 1, Q("4.572494 mm")),
])
pocket1 = doc.addObject("PartDesign::Pocket", "Pocket")
body.addObject(pocket1)
pocket1.Profile = sketch3
pocket1.Length = 23

doc.recompute()
